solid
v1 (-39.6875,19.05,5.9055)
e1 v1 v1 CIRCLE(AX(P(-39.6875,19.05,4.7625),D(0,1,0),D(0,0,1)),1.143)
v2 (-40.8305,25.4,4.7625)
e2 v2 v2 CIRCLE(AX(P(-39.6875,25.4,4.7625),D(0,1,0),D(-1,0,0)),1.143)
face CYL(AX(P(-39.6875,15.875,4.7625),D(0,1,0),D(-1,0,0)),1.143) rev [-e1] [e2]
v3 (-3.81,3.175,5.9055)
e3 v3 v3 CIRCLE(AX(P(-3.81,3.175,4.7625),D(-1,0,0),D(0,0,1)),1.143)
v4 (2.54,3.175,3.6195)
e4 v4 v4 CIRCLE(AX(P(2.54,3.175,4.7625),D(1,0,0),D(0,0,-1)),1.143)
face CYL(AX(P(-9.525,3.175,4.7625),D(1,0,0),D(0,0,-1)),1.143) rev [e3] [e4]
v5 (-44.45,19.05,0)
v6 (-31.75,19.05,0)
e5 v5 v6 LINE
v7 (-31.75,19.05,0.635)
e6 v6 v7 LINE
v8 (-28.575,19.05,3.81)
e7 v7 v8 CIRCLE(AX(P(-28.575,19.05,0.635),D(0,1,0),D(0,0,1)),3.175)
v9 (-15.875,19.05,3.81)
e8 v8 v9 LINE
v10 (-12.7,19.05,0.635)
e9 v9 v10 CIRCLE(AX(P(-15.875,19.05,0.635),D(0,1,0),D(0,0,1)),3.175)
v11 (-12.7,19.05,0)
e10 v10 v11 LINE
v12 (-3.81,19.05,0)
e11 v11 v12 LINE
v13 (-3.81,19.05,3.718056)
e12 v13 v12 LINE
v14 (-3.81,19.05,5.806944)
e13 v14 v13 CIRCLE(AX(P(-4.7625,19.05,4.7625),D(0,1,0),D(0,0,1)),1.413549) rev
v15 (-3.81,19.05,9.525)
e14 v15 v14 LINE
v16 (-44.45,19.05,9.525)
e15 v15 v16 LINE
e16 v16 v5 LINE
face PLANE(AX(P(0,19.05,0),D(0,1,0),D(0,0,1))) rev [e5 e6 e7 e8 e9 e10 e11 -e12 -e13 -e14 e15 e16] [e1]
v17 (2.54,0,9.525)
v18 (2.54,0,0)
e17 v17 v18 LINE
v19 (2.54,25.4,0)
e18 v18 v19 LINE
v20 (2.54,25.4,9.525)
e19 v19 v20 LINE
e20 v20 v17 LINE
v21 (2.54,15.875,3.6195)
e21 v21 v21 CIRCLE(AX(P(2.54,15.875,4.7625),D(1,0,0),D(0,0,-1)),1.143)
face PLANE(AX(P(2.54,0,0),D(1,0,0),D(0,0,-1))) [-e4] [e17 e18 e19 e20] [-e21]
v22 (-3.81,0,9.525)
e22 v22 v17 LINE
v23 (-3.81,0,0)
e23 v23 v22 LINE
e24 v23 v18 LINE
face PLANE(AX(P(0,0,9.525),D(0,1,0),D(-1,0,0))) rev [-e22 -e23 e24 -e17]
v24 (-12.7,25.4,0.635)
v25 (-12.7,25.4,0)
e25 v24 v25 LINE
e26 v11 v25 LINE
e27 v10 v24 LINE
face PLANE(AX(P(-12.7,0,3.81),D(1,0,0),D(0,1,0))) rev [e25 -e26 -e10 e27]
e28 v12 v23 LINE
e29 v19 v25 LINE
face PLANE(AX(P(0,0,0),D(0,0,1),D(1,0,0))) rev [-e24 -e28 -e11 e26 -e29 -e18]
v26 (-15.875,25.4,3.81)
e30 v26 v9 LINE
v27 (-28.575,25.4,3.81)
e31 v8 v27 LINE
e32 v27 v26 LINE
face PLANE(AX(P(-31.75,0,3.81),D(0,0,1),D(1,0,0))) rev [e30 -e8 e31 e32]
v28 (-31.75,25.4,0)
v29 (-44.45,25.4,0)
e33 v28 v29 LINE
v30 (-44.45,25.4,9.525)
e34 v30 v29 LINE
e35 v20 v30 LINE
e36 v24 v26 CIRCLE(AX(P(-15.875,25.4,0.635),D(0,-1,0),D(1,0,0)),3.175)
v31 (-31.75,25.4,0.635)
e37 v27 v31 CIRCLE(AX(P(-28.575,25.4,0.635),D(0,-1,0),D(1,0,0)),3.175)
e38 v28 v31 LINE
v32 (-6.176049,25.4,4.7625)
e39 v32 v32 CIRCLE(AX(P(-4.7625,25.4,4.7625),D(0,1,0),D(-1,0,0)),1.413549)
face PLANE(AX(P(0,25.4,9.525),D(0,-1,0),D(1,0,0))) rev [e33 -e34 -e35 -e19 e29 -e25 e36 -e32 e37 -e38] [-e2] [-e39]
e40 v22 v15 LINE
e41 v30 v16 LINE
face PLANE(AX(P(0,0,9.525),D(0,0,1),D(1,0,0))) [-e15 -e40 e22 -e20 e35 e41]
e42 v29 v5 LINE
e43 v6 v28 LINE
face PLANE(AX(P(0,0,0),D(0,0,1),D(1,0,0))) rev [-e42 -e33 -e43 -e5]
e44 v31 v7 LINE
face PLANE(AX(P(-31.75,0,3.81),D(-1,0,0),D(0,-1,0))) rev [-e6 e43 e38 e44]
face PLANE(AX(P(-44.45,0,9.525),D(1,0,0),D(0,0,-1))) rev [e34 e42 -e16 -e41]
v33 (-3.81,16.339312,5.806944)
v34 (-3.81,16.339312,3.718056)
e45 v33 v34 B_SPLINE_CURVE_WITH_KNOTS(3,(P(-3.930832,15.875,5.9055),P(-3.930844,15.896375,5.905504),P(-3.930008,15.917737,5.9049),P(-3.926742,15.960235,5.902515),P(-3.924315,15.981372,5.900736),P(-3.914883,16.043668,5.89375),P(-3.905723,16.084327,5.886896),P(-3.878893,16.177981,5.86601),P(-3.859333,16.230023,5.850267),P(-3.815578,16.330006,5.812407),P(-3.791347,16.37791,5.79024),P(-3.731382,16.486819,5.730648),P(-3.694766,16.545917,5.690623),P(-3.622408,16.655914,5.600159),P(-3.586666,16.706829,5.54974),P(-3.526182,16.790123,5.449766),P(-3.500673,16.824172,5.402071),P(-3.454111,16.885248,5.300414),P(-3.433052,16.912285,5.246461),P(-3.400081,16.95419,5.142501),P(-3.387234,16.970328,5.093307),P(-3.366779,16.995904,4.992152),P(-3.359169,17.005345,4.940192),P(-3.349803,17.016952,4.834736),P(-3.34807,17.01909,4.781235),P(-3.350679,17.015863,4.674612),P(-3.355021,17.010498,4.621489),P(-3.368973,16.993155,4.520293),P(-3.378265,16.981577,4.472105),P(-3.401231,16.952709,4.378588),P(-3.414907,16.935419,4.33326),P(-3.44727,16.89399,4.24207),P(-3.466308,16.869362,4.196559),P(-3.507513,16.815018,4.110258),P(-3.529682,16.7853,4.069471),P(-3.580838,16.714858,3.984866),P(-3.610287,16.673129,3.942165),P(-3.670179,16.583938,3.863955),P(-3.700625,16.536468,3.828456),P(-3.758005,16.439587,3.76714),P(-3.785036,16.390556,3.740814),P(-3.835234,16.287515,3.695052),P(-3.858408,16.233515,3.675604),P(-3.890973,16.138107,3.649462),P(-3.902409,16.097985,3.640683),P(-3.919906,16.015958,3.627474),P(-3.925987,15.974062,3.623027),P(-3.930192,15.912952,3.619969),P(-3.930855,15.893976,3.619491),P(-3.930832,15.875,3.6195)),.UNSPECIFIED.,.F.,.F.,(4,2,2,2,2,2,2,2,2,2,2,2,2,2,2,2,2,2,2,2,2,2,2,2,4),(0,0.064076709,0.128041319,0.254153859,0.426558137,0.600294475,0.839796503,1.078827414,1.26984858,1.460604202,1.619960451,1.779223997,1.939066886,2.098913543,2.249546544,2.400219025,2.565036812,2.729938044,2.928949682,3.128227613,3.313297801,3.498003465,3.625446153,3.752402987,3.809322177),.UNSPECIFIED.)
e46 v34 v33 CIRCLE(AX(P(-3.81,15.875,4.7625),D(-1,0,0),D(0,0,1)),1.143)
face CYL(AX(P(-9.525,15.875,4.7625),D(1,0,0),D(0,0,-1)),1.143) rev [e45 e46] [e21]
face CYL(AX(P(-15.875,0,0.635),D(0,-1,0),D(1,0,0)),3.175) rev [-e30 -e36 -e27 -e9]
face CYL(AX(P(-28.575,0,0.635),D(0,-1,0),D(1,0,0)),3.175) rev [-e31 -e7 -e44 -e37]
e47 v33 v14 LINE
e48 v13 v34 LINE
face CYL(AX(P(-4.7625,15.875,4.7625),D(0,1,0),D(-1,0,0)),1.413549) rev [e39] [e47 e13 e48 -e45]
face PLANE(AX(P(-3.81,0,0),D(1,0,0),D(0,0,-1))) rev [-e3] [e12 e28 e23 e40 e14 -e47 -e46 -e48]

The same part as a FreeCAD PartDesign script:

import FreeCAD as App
import Part
import Sketcher
from FreeCAD import Vector
Q = App.Units.Quantity


def edges_at(feature, points):
    """Names of the edges that pass closest to the given points."""
    edges = feature.Shape.Edges
    near = lambda p: min(range(len(edges)), key=lambda i: edges[i].distToShape(Part.Vertex(*p))[0])
    return sorted({f"Edge{near(p) + 1}" for p in points})

doc = App.newDocument("Part")
body = doc.addObject("PartDesign::Body", "Body")

# Sketch on XY plane
sketch1 = body.newObject("Sketcher::SketchObject", "Sketch")
sketch1.AttachmentSupport = (doc.getObject("XY_Plane"), [""])
sketch1.MapMode = "FlatFace"
sketch1.addGeometry(Part.LineSegment(Vector(-44, 25, 0), Vector(-44, 0, 0)), False)
sketch1.addGeometry(Part.LineSegment(Vector(-44, 0, 0), Vector(0, 0, 0)), False)
sketch1.addGeometry(Part.LineSegment(Vector(0, 0, 0), Vector(0, 25, 0)), False)
sketch1.addGeometry(Part.LineSegment(Vector(0, 25, 0), Vector(-44, 25, 0)), False)
sketch1.addConstraint(Sketcher.Constraint("Coincident", 0, 2, 1, 1))
sketch1.addConstraint(Sketcher.Constraint("Coincident", 1, 2, 2, 1))
sketch1.addConstraint(Sketcher.Constraint("Coincident", 2, 2, 3, 1))
sketch1.addConstraint(Sketcher.Constraint("Coincident", 3, 2, 0, 1))
sketch1.addConstraint(Sketcher.Constraint("Vertical", 0))
sketch1.addConstraint(Sketcher.Constraint("Horizontal", 1))
sketch1.addConstraint(Sketcher.Constraint("Vertical", 2))
sketch1.addConstraint(Sketcher.Constraint("Horizontal", 3))
sketch1.addConstraint(Sketcher.Constraint("Coincident", 1, 2, -1, 1))
sketch1.addConstraint(Sketcher.Constraint("DistanceY", 0, 2, 0, 1, Q("1 in")))
sketch1.addConstraint(Sketcher.Constraint("DistanceX", 1, 1, 1, 2, Q("1.75 in")))
pad1 = body.newObject("PartDesign::Pad", "Pad")
pad1.Profile = sketch1
pad1.Length = Q("0.375 in")

# Sketch on XY plane
sketch2 = body.newObject("Sketcher::SketchObject", "Sketch001")
sketch2.AttachmentSupport = (doc.getObject("XY_Plane"), [""])
sketch2.MapMode = "FlatFace"
sketch2.AttachmentOffset = App.Placement(Vector(0, 0, 0.375 * 25.4), App.Rotation())
sketch2.addGeometry(Part.LineSegment(Vector(-44, 16, 0), Vector(-44, 0, 0)), False)
sketch2.addGeometry(Part.LineSegment(Vector(-44, 0, 0), Vector(-10, 0, 0)), False)
sketch2.addGeometry(Part.LineSegment(Vector(-10, 0, 0), Vector(-10, 16, 0)), False)
sketch2.addGeometry(Part.LineSegment(Vector(-10, 16, 0), Vector(-44, 16, 0)), False)
sketch2.addConstraint(Sketcher.Constraint("Coincident", 0, 2, 1, 1))
sketch2.addConstraint(Sketcher.Constraint("Coincident", 1, 2, 2, 1))
sketch2.addConstraint(Sketcher.Constraint("Coincident", 2, 2, 3, 1))
sketch2.addConstraint(Sketcher.Constraint("Coincident", 3, 2, 0, 1))
sketch2.addConstraint(Sketcher.Constraint("Vertical", 0))
sketch2.addConstraint(Sketcher.Constraint("Horizontal", 1))
sketch2.addConstraint(Sketcher.Constraint("Vertical", 2))
sketch2.addConstraint(Sketcher.Constraint("Horizontal", 3))
sketch2.addConstraint(Sketcher.Constraint("PointOnObject", 0, 2, -1))
sketch2.addConstraint(Sketcher.Constraint("DistanceX", 1, 1, 1, 2, Q("1.375 in")))
sketch2.addConstraint(Sketcher.Constraint("DistanceY", 0, 2, 0, 1, Q("0.625 in")))
sketch2.addConstraint(Sketcher.Constraint("DistanceX", 0, 2, -1, 1, Q("1.75 in")))
pocket1 = body.newObject("PartDesign::Pocket", "Pocket")
pocket1.Profile = sketch2
pocket1.Type = "ThroughAll"

# Sketch on YZ plane
sketch3 = body.newObject("Sketcher::SketchObject", "Sketch002")
sketch3.AttachmentSupport = (doc.getObject("YZ_Plane"), [""])
sketch3.MapMode = "FlatFace"
sketch3.addGeometry(Part.Circle(Vector(3.2, 4.8, 0), Vector(0, 0, 1), 1.1), False)
sketch3.addGeometry(Part.Circle(Vector(15.9, 4.8, 0), Vector(0, 0, 1), 1.1), False)
sketch3.addConstraint(Sketcher.Constraint("Equal", 0, 1))
sketch3.addConstraint(Sketcher.Constraint("Horizontal", 0, 3, 1, 3))
sketch3.addConstraint(Sketcher.Constraint("Diameter", 0, Q("0.09 in")))
sketch3.addConstraint(Sketcher.Constraint("DistanceX", 0, 3, 1, 3, Q("0.5 in")))
sketch3.addConstraint(Sketcher.Constraint("DistanceX", -1, 1, 0, 3, Q("0.125 in")))
sketch3.addConstraint(Sketcher.Constraint("DistanceY", -1, 1, 0, 3, Q("0.1875 in")))
pocket2 = body.newObject("PartDesign::Pocket", "Pocket001")
pocket2.Profile = sketch3
pocket2.Length = Q("0.375 in")

# Sketch on XZ plane
sketch4 = body.newObject("Sketcher::SketchObject", "Sketch003")
sketch4.AttachmentSupport = (doc.getObject("XZ_Plane"), [""])
sketch4.MapMode = "FlatFace"
sketch4.AttachmentOffset = App.Placement(Vector(0, 0, -0.625 * 25.4), App.Rotation())
sketch4.addGeometry(Part.LineSegment(Vector(-44, 10, 0), Vector(-44, 0, 0)), False)
sketch4.addGeometry(Part.LineSegment(Vector(-44, 0, 0), Vector(-10, 0, 0)), False)
sketch4.addGeometry(Part.LineSegment(Vector(-10, 0, 0), Vector(-10, 10, 0)), False)
sketch4.addGeometry(Part.LineSegment(Vector(-10, 10, 0), Vector(-44, 10, 0)), False)
sketch4.addConstraint(Sketcher.Constraint("Coincident", 0, 2, 1, 1))
sketch4.addConstraint(Sketcher.Constraint("Coincident", 1, 2, 2, 1))
sketch4.addConstraint(Sketcher.Constraint("Coincident", 2, 2, 3, 1))
sketch4.addConstraint(Sketcher.Constraint("Coincident", 3, 2, 0, 1))
sketch4.addConstraint(Sketcher.Constraint("Vertical", 0))
sketch4.addConstraint(Sketcher.Constraint("Horizontal", 1))
sketch4.addConstraint(Sketcher.Constraint("Vertical", 2))
sketch4.addConstraint(Sketcher.Constraint("Horizontal", 3))
sketch4.addConstraint(Sketcher.Constraint("PointOnObject", 0, 2, -1))
sketch4.addConstraint(Sketcher.Constraint("DistanceX", 1, 1, 1, 2, Q("1.375 in")))
sketch4.addConstraint(Sketcher.Constraint("DistanceY", 0, 2, 0, 1, Q("0.375 in")))
sketch4.addConstraint(Sketcher.Constraint("DistanceX", 0, 2, -1, 1, Q("1.75 in")))
pocket3 = body.newObject("PartDesign::Pocket", "Pocket002")
pocket3.Profile = sketch4
pocket3.Length = Q("0.125 in")

# Sketch on XZ plane
sketch5 = body.newObject("Sketcher::SketchObject", "Sketch004")
sketch5.AttachmentSupport = (doc.getObject("XZ_Plane"), [""])
sketch5.MapMode = "FlatFace"
sketch5.AttachmentOffset = App.Placement(Vector(0, 0, -1 * 25.4), App.Rotation())
sketch5.addGeometry(Part.LineSegment(Vector(-31.8, 0, 0), Vector(-31.8, 3.8, 0)), False)
sketch5.addGeometry(Part.LineSegment(Vector(-31.8, 3.8, 0), Vector(-12.7, 3.8, 0)), False)
sketch5.addGeometry(Part.LineSegment(Vector(-12.7, 3.8, 0), Vector(-12.7, 0, 0)), False)
sketch5.addGeometry(Part.LineSegment(Vector(-12.7, 0, 0), Vector(-31.8, 0, 0)), False)
sketch5.addConstraint(Sketcher.Constraint("Coincident", 0, 2, 1, 1))
sketch5.addConstraint(Sketcher.Constraint("Coincident", 1, 2, 2, 1))
sketch5.addConstraint(Sketcher.Constraint("Coincident", 2, 2, 3, 1))
sketch5.addConstraint(Sketcher.Constraint("Coincident", 3, 2, 0, 1))
sketch5.addConstraint(Sketcher.Constraint("Vertical", 0))
sketch5.addConstraint(Sketcher.Constraint("Horizontal", 1))
sketch5.addConstraint(Sketcher.Constraint("Vertical", 2))
sketch5.addConstraint(Sketcher.Constraint("Horizontal", 3))
sketch5.addConstraint(Sketcher.Constraint("PointOnObject", 2, 2, -1))
sketch5.addConstraint(Sketcher.Constraint("DistanceX", 1, 1, 1, 2, Q("0.75 in")))
sketch5.addConstraint(Sketcher.Constraint("DistanceY", 0, 1, 0, 2, Q("0.15 in")))
sketch5.addConstraint(Sketcher.Constraint("DistanceX", 1, 2, -1, 1, Q("0.5 in")))
pocket4 = body.newObject("PartDesign::Pocket", "Pocket003")
pocket4.Profile = sketch5
pocket4.Type = "ThroughAll"
pocket4.Reversed = True
doc.recompute()

fillet = body.newObject("PartDesign::Fillet", "Fillet")
fillet.Base = (pocket4, edges_at(pocket4, [(-12.7, 22.225, 3.81), (-31.75, 22.225, 3.81)]))
fillet.Radius = Q("0.125 in")

# Sketch on XZ plane
sketch6 = body.newObject("Sketcher::SketchObject", "Sketch005")
sketch6.AttachmentSupport = (doc.getObject("XZ_Plane"), [""])
sketch6.MapMode = "FlatFace"
sketch6.AttachmentOffset = App.Placement(Vector(0, 0, -1 * 25.4), App.Rotation())
sketch6.addGeometry(Part.Circle(Vector(-39.7, 4.8, 0), Vector(0, 0, 1), 1.1), False)
sketch6.addGeometry(Part.Circle(Vector(-4.8, 4.8, 0), Vector(0, 0, 1), 1.4), False)
sketch6.addConstraint(Sketcher.Constraint("Horizontal", 0, 3, 1, 3))
sketch6.addConstraint(Sketcher.Constraint("Diameter", 0, Q("0.09 in")))
sketch6.addConstraint(Sketcher.Constraint("DistanceX", 0, 3, -1, 1, Q("1.5625 in")))
sketch6.addConstraint(Sketcher.Constraint("DistanceY", -1, 1, 0, 3, Q("0.1875 in")))
sketch6.addConstraint(Sketcher.Constraint("DistanceX", 1, 3, -1, 1, Q("0.1875 in")))
sketch6.addConstraint(Sketcher.Constraint("Diameter", 1, 2.827097))
pocket5 = body.newObject("PartDesign::Pocket", "Pocket004")
pocket5.Profile = sketch6
pocket5.Length = Q("0.375 in")
pocket5.Reversed = True

# Sketch on YZ plane
sketch7 = body.newObject("Sketcher::SketchObject", "Sketch006")
sketch7.AttachmentSupport = (doc.getObject("YZ_Plane"), [""])
sketch7.MapMode = "FlatFace"
sketch7.addGeometry(Part.LineSegment(Vector(25.4, 9.5, 0), Vector(0, 9.5, 0)), False)
sketch7.addGeometry(Part.LineSegment(Vector(0, 9.5, 0), Vector(0, 0, 0)), False)
sketch7.addGeometry(Part.LineSegment(Vector(0, 0, 0), Vector(25.4, 0, 0)), False)
sketch7.addGeometry(Part.LineSegment(Vector(25.4, 0, 0), Vector(25.4, 9.5, 0)), False)
sketch7.addGeometry(Part.Circle(Vector(3.2, 4.8, 0), Vector(0, 0, 1), 1.1), False)
sketch7.addGeometry(Part.Circle(Vector(15.9, 4.8, 0), Vector(0, 0, 1), 1.1), False)
sketch7.addConstraint(Sketcher.Constraint("Coincident", 0, 2, 1, 1))
sketch7.addConstraint(Sketcher.Constraint("Coincident", 1, 2, 2, 1))
sketch7.addConstraint(Sketcher.Constraint("Coincident", 2, 2, 3, 1))
sketch7.addConstraint(Sketcher.Constraint("Coincident", 3, 2, 0, 1))
sketch7.addConstraint(Sketcher.Constraint("Horizontal", 0))
sketch7.addConstraint(Sketcher.Constraint("Vertical", 1))
sketch7.addConstraint(Sketcher.Constraint("Horizontal", 2))
sketch7.addConstraint(Sketcher.Constraint("Vertical", 3))
sketch7.addConstraint(Sketcher.Constraint("Coincident", 1, 2, -1, 1))
sketch7.addConstraint(Sketcher.Constraint("Equal", 4, 5))
sketch7.addConstraint(Sketcher.Constraint("Horizontal", 4, 3, 5, 3))
sketch7.addConstraint(Sketcher.Constraint("Diameter", 4, Q("0.09 in")))
sketch7.addConstraint(Sketcher.Constraint("DistanceX", 0, 2, 0, 1, Q("1 in")))
sketch7.addConstraint(Sketcher.Constraint("DistanceX", 4, 3, 5, 3, Q("0.5 in")))
sketch7.addConstraint(Sketcher.Constraint("DistanceY", 1, 2, 1, 1, Q("0.375 in")))
sketch7.addConstraint(Sketcher.Constraint("DistanceX", -1, 1, 4, 3, Q("0.125 in")))
sketch7.addConstraint(Sketcher.Constraint("DistanceY", -1, 1, 4, 3, Q("0.1875 in")))
pad2 = body.newObject("PartDesign::Pad", "Pad001")
pad2.Profile = sketch7
pad2.Length = Q("0.1 in")

# Sketch on YZ plane
sketch8 = body.newObject("Sketcher::SketchObject", "Sketch007")
sketch8.AttachmentSupport = (doc.getObject("YZ_Plane"), [""])
sketch8.MapMode = "FlatFace"
sketch8.AttachmentOffset = App.Placement(Vector(0, 0, -0.375 * 25.4), App.Rotation())
sketch8.addGeometry(Part.LineSegment(Vector(19.1, 0, 0), Vector(0, 0, 0)), False)
sketch8.addGeometry(Part.LineSegment(Vector(0, 0, 0), Vector(0, 9.5, 0)), False)
sketch8.addGeometry(Part.LineSegment(Vector(0, 9.5, 0), Vector(19.1, 9.5, 0)), False)
sketch8.addGeometry(Part.LineSegment(Vector(19.1, 9.5, 0), Vector(19.1, 0, 0)), False)
sketch8.addGeometry(Part.Circle(Vector(3.2, 4.8, 0), Vector(0, 0, 1), 1.1), False)
sketch8.addGeometry(Part.Circle(Vector(15.9, 4.8, 0), Vector(0, 0, 1), 1.1), False)
sketch8.addConstraint(Sketcher.Constraint("Coincident", 0, 2, 1, 1))
sketch8.addConstraint(Sketcher.Constraint("Coincident", 1, 2, 2, 1))
sketch8.addConstraint(Sketcher.Constraint("Coincident", 2, 2, 3, 1))
sketch8.addConstraint(Sketcher.Constraint("Coincident", 3, 2, 0, 1))
sketch8.addConstraint(Sketcher.Constraint("Horizontal", 0))
sketch8.addConstraint(Sketcher.Constraint("Vertical", 1))
sketch8.addConstraint(Sketcher.Constraint("Horizontal", 2))
sketch8.addConstraint(Sketcher.Constraint("Vertical", 3))
sketch8.addConstraint(Sketcher.Constraint("Coincident", 0, 2, -1, 1))
sketch8.addConstraint(Sketcher.Constraint("Equal", 4, 5))
sketch8.addConstraint(Sketcher.Constraint("Horizontal", 4, 3, 5, 3))
sketch8.addConstraint(Sketcher.Constraint("Diameter", 4, Q("0.09 in")))
sketch8.addConstraint(Sketcher.Constraint("DistanceX", 0, 2, 0, 1, Q("0.75 in")))
sketch8.addConstraint(Sketcher.Constraint("DistanceX", 4, 3, 5, 3, Q("0.5 in")))
sketch8.addConstraint(Sketcher.Constraint("DistanceY", 1, 1, 1, 2, Q("0.375 in")))
sketch8.addConstraint(Sketcher.Constraint("DistanceX", -1, 1, 4, 3, Q("0.125 in")))
sketch8.addConstraint(Sketcher.Constraint("DistanceY", -1, 1, 4, 3, Q("0.1875 in")))
pocket6 = body.newObject("PartDesign::Pocket", "Pocket005")
pocket6.Profile = sketch8
pocket6.Length = Q("0.225 in")
pocket6.Reversed = True

doc.recompute()
